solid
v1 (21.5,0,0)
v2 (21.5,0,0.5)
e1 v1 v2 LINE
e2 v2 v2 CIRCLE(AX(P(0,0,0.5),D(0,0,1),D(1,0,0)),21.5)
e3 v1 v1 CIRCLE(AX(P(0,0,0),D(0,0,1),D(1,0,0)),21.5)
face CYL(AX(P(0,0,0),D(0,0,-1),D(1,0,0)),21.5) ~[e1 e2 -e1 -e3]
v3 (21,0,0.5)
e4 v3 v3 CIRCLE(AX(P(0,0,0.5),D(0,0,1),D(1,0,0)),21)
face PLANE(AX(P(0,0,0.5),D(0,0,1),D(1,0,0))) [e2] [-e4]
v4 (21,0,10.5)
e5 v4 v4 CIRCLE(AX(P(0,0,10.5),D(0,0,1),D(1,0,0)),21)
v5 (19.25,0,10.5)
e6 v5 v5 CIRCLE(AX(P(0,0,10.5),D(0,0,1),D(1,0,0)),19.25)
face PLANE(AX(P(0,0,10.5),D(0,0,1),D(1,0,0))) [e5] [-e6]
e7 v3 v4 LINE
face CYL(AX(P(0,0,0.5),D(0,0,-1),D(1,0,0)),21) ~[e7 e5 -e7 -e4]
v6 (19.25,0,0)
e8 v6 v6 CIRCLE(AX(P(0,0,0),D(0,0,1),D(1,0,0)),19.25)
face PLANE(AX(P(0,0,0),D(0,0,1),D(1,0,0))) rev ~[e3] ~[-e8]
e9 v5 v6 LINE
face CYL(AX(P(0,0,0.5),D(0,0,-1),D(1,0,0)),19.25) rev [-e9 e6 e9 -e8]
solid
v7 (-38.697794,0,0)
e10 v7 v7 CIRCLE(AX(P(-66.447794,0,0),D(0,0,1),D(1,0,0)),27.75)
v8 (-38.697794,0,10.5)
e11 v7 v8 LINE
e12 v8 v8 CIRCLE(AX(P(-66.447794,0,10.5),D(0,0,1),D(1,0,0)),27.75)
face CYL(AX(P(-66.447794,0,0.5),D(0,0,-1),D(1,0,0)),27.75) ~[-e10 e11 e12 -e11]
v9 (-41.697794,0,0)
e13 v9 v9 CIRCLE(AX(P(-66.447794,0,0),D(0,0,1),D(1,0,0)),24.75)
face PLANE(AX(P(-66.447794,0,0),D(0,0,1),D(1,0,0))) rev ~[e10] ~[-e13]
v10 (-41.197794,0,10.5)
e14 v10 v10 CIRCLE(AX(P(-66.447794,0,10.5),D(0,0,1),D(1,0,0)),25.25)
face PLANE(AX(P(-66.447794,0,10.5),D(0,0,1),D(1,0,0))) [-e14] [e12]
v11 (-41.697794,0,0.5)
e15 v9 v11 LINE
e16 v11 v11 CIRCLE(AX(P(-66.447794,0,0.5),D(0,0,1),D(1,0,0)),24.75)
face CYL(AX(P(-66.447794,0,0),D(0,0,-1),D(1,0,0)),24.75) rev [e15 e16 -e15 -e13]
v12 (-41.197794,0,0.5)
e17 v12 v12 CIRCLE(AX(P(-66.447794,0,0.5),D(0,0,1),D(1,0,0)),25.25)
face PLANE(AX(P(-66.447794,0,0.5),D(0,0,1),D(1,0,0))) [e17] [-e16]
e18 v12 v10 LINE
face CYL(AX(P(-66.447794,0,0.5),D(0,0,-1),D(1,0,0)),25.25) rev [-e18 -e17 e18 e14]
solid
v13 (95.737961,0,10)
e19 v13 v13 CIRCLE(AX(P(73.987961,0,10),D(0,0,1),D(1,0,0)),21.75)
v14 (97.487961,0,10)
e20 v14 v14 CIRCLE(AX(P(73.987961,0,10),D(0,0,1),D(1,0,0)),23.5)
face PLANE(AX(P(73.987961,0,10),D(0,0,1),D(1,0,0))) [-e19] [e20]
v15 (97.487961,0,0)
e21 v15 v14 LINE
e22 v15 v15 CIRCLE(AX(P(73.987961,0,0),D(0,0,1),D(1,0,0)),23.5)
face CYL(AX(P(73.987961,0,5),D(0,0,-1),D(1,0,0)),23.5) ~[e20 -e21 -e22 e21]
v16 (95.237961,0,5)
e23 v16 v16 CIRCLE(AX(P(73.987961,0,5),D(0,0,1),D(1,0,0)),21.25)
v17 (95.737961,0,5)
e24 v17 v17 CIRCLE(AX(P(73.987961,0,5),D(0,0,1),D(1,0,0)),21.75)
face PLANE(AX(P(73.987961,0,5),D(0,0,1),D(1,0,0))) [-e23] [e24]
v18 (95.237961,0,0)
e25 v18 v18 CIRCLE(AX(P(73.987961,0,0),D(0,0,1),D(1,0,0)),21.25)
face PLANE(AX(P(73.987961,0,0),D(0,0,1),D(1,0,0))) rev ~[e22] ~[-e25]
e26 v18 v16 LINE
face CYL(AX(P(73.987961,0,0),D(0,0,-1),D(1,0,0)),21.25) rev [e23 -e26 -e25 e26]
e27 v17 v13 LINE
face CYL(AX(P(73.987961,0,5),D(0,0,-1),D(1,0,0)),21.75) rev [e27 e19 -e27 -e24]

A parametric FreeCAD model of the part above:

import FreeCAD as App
import Part
import Sketcher
Q = App.Units.Quantity

doc = App.newDocument("Part")
body = doc.addObject("PartDesign::Body", "Body")

sketch1 = doc.addObject("Sketcher::SketchObject", "Sketch")
body.addObject(sketch1)
sketch1.AttachmentSupport = (doc.XY_Plane, [""])
sketch1.MapMode = "FlatFace"
sketch1.addGeometry([
    Part.Circle(App.Vector(0, 0, 0), App.Vector(0, 0, 1), 22),
    Part.Circle(App.Vector(0, 0, 0), App.Vector(0, 0, 1), 19),
], False)
sketch1.addConstraint([
    Sketcher.Constraint("Coincident", 0, 3, -1, 1),
    Sketcher.Constraint("Coincident", 1, 3, -1, 1),
    Sketcher.Constraint("Diameter", 0, Q("43 mm")),
    Sketcher.Constraint("Diameter", 1, Q("38.5 mm")),
])
pad1 = doc.addObject("PartDesign::Pad", "Pad")
body.addObject(pad1)
pad1.Profile = sketch1
pad1.Length = 0.5

sketch2 = doc.addObject("Sketcher::SketchObject", "Sketch001")
body.addObject(sketch2)
sketch2.AttachmentSupport = (doc.XY_Plane, [""])
sketch2.MapMode = "FlatFace"
sketch2.AttachmentOffset = App.Placement(App.Vector(0, 0, 0.5), App.Rotation())
sketch2.addGeometry([
    Part.Circle(App.Vector(0, 0, 0), App.Vector(0, 0, 1), 21),
    Part.Circle(App.Vector(0, 0, 0), App.Vector(0, 0, 1), 19),
], False)
sketch2.addConstraint([
    Sketcher.Constraint("Coincident", 0, 3, -1, 1),
    Sketcher.Constraint("Coincident", 1, 3, -1, 1),
    Sketcher.Constraint("Diameter", 0, Q("42 mm")),
    Sketcher.Constraint("Diameter", 1, Q("38.5 mm")),
])
pad2 = doc.addObject("PartDesign::Pad", "Pad001")
body.addObject(pad2)
pad2.Profile = sketch2
pad2.Length = 10
body2 = doc.addObject("PartDesign::Body", "Body001")

sketch3 = doc.addObject("Sketcher::SketchObject", "Sketch002")
body2.addObject(sketch3)
sketch3.AttachmentSupport = (doc.getObject("XY_Plane001"), [""])
sketch3.MapMode = "FlatFace"
sketch3.addGeometry([
    Part.Circle(App.Vector(74, 0, 0), App.Vector(0, 0, 1), 24),
    Part.Circle(App.Vector(74, 0, 0), App.Vector(0, 0, 1), 21),
], False)
sketch3.addConstraint([
    Sketcher.Constraint("Coincident", 1, 3, 0, 3),
    Sketcher.Constraint("PointOnObject", 0, 3, -1),
    Sketcher.Constraint("Diameter", 0, Q("47 mm")),
    Sketcher.Constraint("Diameter", 1, Q("42.5 mm")),
    Sketcher.Constraint("DistanceX", -1, 1, 0, 3, Q("73.987961 mm")),
])
pad3 = doc.addObject("PartDesign::Pad", "Pad002")
body2.addObject(pad3)
pad3.Profile = sketch3
pad3.Length = 5

sketch4 = doc.addObject("Sketcher::SketchObject", "Sketch003")
body2.addObject(sketch4)
sketch4.AttachmentSupport = (doc.getObject("XY_Plane001"), [""])
sketch4.MapMode = "FlatFace"
sketch4.AttachmentOffset = App.Placement(App.Vector(0, 0, 5), App.Rotation())
sketch4.addGeometry([
    Part.Circle(App.Vector(74, 0, 0), App.Vector(0, 0, 1), 24),
    Part.Circle(App.Vector(74, 0, 0), App.Vector(0, 0, 1), 22),
], False)
sketch4.addConstraint([
    Sketcher.Constraint("Coincident", 1, 3, 0, 3),
    Sketcher.Constraint("PointOnObject", 0, 3, -1),
    Sketcher.Constraint("Diameter", 0, Q("47 mm")),
    Sketcher.Constraint("Diameter", 1, Q("43.5 mm")),
    Sketcher.Constraint("DistanceX", -1, 1, 0, 3, Q("73.987961 mm")),
])
pad4 = doc.addObject("PartDesign::Pad", "Pad003")
body2.addObject(pad4)
pad4.Profile = sketch4
pad4.Length = 5
body3 = doc.addObject("PartDesign::Body", "Body002")

sketch5 = doc.addObject("Sketcher::SketchObject", "Sketch004")
body3.addObject(sketch5)
sketch5.AttachmentSupport = (doc.getObject("XY_Plane002"), [""])
sketch5.MapMode = "FlatFace"
sketch5.addGeometry([
    Part.Circle(App.Vector(-66, 0, 0), App.Vector(0, 0, 1), 28),
    Part.Circle(App.Vector(-66, 0, 0), App.Vector(0, 0, 1), 25),
], False)
sketch5.addConstraint([
    Sketcher.Constraint("Coincident", 1, 3, 0, 3),
    Sketcher.Constraint("PointOnObject", 0, 3, -1),
    Sketcher.Constraint("Diameter", 0, Q("55.5 mm")),
    Sketcher.Constraint("Diameter", 1, Q("49.5 mm")),
    Sketcher.Constraint("DistanceX", 0, 3, -1, 1, Q("66.447794 mm")),
])
pad5 = doc.addObject("PartDesign::Pad", "Pad004")
body3.addObject(pad5)
pad5.Profile = sketch5
pad5.Length = 0.5

sketch6 = doc.addObject("Sketcher::SketchObject", "Sketch005")
body3.addObject(sketch6)
sketch6.AttachmentSupport = (doc.getObject("XY_Plane002"), [""])
sketch6.MapMode = "FlatFace"
sketch6.AttachmentOffset = App.Placement(App.Vector(0, 0, 0.5), App.Rotation())
sketch6.addGeometry([
    Part.Circle(App.Vector(-66, 0, 0), App.Vector(0, 0, 1), 28),
    Part.Circle(App.Vector(-66, 0, 0), App.Vector(0, 0, 1), 25),
], False)
sketch6.addConstraint([
    Sketcher.Constraint("Coincident", 1, 3, 0, 3),
    Sketcher.Constraint("PointOnObject", 0, 3, -1),
    Sketcher.Constraint("Diameter", 0, Q("55.5 mm")),
    Sketcher.Constraint("Diameter", 1, Q("50.5 mm")),
    Sketcher.Constraint("DistanceX", 0, 3, -1, 1, Q("66.447794 mm")),
])
pad6 = doc.addObject("PartDesign::Pad", "Pad005")
body3.addObject(pad6)
pad6.Profile = sketch6
pad6.Length = 10

doc.recompute()
